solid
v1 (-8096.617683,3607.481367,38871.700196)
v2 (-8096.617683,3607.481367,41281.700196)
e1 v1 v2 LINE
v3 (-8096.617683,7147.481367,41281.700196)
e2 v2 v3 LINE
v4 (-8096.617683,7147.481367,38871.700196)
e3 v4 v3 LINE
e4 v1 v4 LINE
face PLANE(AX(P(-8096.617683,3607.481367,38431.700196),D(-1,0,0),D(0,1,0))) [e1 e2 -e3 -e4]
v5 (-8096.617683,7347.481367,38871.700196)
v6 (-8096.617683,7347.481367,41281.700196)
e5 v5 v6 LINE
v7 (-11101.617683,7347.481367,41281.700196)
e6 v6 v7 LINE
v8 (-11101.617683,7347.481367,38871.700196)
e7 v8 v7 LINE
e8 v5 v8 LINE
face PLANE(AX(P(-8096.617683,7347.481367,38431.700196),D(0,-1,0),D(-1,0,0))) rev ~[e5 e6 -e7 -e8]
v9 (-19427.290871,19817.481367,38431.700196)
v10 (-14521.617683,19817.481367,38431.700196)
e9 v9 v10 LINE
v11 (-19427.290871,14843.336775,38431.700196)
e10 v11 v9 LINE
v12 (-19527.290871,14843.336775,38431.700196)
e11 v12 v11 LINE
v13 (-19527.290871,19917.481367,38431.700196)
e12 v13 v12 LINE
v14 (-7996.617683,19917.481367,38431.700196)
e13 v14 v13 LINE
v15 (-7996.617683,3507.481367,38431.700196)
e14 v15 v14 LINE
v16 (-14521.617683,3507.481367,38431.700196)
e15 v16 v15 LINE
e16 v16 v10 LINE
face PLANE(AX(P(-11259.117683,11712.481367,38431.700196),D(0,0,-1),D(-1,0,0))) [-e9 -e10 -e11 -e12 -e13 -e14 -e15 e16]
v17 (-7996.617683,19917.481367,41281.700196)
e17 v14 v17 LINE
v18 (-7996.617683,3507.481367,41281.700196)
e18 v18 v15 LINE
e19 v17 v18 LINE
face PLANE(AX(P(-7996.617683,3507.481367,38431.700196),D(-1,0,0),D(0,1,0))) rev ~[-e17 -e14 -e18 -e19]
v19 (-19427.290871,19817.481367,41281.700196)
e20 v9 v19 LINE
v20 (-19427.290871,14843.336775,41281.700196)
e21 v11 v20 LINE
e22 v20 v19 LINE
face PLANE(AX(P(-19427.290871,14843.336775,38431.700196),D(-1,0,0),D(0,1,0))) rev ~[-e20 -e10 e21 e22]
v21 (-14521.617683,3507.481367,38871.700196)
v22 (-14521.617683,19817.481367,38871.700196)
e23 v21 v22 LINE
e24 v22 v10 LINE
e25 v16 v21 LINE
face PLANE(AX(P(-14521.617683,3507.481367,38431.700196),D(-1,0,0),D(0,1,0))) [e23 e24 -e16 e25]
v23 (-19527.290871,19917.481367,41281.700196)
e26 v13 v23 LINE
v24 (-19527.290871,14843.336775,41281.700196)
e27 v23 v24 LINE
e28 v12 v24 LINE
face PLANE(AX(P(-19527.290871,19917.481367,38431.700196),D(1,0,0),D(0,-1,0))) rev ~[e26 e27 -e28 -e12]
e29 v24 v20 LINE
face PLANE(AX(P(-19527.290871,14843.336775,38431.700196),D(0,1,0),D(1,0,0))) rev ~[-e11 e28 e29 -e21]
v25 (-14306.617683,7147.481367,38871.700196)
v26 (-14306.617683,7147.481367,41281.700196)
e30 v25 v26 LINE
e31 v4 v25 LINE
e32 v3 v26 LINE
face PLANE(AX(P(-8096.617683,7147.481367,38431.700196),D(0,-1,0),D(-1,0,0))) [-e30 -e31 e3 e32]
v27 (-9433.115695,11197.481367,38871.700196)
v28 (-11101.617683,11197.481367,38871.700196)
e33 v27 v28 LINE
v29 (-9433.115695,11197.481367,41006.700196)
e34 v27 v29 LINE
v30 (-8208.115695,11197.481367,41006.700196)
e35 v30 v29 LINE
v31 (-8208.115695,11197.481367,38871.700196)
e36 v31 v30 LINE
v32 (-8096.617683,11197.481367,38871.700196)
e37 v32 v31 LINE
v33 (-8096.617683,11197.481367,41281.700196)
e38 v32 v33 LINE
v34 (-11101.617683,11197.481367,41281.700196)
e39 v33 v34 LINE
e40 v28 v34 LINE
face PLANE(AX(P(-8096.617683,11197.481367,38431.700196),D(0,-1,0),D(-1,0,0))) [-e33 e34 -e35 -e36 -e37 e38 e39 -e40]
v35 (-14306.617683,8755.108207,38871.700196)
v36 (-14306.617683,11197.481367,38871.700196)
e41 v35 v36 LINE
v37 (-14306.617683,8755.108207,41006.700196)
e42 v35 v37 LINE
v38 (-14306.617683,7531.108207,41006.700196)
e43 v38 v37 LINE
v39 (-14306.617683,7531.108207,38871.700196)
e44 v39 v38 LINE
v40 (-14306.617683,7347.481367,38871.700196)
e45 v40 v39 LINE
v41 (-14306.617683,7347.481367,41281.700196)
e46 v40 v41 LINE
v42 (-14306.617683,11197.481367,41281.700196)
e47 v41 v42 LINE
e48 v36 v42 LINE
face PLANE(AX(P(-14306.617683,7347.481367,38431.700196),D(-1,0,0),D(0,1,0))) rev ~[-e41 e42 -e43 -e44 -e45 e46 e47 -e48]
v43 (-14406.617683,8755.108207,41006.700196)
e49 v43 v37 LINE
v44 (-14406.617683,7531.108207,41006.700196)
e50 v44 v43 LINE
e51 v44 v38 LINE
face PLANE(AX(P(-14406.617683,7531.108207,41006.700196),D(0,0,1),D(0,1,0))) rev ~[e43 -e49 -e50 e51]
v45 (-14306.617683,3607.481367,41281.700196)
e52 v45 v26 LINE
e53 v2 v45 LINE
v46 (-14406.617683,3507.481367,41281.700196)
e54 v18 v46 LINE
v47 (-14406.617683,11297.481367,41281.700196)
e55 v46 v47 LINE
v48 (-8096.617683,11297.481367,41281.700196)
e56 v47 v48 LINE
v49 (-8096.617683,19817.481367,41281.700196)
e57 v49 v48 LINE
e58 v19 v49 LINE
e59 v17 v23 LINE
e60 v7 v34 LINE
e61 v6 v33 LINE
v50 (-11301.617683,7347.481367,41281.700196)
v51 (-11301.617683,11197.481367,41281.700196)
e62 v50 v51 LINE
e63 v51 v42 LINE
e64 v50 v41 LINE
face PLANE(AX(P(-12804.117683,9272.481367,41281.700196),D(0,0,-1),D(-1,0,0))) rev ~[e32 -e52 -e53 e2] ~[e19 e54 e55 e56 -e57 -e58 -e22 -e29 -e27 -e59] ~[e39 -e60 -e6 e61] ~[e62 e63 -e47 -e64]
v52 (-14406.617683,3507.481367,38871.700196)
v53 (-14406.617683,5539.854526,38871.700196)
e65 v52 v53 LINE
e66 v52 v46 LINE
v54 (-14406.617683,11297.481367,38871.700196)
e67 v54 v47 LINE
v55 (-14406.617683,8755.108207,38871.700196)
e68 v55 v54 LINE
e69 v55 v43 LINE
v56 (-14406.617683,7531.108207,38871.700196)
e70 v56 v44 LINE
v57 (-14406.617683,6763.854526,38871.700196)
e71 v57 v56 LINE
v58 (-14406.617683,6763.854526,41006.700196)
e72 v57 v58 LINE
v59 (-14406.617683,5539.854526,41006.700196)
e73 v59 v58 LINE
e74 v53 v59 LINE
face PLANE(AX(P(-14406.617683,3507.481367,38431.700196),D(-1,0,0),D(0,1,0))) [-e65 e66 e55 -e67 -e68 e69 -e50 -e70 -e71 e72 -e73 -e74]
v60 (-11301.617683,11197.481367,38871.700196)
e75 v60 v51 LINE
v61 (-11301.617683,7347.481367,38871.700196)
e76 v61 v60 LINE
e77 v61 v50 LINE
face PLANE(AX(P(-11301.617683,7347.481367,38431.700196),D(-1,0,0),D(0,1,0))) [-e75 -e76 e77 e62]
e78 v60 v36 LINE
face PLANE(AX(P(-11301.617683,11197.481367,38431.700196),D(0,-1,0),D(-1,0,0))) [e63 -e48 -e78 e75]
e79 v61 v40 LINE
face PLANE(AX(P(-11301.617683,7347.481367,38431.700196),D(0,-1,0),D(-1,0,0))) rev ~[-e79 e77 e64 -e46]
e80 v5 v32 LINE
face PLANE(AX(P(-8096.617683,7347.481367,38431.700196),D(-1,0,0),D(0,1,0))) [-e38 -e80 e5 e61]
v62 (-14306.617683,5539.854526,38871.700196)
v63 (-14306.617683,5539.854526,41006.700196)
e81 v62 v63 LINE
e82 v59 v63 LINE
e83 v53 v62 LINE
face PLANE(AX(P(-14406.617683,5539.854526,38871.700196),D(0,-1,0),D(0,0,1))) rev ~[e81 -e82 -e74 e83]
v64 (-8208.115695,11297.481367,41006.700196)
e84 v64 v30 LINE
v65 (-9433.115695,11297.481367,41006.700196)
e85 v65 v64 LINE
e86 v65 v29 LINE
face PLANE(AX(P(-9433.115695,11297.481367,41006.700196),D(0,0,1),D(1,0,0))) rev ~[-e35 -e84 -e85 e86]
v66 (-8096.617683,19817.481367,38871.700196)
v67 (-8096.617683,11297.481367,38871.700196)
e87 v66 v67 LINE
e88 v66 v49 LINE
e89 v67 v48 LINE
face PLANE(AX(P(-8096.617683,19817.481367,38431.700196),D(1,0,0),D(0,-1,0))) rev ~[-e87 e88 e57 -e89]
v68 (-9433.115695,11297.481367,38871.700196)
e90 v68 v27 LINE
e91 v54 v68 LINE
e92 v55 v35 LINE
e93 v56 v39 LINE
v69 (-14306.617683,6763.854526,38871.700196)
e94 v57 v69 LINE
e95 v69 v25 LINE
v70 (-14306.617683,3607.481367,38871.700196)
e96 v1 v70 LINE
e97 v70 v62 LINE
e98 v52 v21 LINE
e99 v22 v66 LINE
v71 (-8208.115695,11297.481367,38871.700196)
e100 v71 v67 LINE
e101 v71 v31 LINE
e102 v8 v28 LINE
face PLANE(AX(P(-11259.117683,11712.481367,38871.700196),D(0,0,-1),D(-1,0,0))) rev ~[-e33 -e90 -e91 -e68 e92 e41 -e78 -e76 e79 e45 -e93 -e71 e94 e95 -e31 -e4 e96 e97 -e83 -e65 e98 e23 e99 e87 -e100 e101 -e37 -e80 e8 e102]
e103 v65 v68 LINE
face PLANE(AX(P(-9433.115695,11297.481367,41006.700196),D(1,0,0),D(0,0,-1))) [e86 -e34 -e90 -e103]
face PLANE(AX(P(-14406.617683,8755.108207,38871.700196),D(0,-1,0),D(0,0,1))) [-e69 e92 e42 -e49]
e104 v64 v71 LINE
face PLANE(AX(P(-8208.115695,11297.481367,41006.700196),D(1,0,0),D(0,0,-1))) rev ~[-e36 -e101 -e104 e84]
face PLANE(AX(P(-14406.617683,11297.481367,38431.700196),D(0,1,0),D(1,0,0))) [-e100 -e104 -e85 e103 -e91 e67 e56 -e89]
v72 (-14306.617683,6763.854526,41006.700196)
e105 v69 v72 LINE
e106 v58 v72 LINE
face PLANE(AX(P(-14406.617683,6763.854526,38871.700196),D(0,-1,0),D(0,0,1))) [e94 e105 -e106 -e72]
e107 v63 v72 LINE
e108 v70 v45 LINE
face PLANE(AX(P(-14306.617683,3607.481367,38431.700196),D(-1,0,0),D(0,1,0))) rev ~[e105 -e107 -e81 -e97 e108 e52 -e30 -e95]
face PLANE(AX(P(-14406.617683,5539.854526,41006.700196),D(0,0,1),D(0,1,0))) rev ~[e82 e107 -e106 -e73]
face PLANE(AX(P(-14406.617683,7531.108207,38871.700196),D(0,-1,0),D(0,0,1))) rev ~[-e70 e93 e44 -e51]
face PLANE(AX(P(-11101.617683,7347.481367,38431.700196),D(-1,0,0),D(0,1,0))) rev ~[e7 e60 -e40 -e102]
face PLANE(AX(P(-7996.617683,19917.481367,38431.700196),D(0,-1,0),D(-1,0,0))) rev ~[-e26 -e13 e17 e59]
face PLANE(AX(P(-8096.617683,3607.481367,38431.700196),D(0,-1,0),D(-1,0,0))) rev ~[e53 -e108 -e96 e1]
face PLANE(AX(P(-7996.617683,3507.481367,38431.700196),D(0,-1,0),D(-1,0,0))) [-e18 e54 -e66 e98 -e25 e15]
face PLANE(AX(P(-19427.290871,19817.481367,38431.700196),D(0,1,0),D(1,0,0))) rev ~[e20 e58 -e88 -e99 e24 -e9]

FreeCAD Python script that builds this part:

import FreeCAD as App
import Part
import Sketcher
from FreeCAD import Vector
Q = App.Units.Quantity

doc = App.newDocument("Part")
body = doc.addObject("PartDesign::Body", "Body")

sketch1 = doc.addObject("Sketcher::SketchObject", "Sketch")
body.addObject(sketch1)
sketch1.AttachmentSupport = (doc.XY_Plane, [""])
sketch1.MapMode = "FlatFace"
sketch1.AttachmentOffset = App.Placement(Vector(0, 0, 38431.700196), App.Rotation())
sketch1.addGeometry(Part.LineSegment(Vector(-7997, 19917, 0), Vector(-7997, 3507, 0)), False)
sketch1.addGeometry(Part.LineSegment(Vector(-7997, 3507, 0), Vector(-14522, 3507, 0)), False)
sketch1.addGeometry(Part.LineSegment(Vector(-14522, 3507, 0), Vector(-14522, 19917, 0)), False)
sketch1.addGeometry(Part.LineSegment(Vector(-14522, 19917, 0), Vector(-7997, 19917, 0)), False)
sketch1.addConstraint(Sketcher.Constraint("Coincident", 0, 2, 1, 1))
sketch1.addConstraint(Sketcher.Constraint("Coincident", 1, 2, 2, 1))
sketch1.addConstraint(Sketcher.Constraint("Coincident", 2, 2, 3, 1))
sketch1.addConstraint(Sketcher.Constraint("Coincident", 3, 2, 0, 1))
sketch1.addConstraint(Sketcher.Constraint("Vertical", 0))
sketch1.addConstraint(Sketcher.Constraint("Horizontal", 1))
sketch1.addConstraint(Sketcher.Constraint("Vertical", 2))
sketch1.addConstraint(Sketcher.Constraint("Horizontal", 3))
sketch1.addConstraint(Sketcher.Constraint("DistanceX", 1, 2, 1, 1, Q("6525 mm")))
sketch1.addConstraint(Sketcher.Constraint("DistanceY", 0, 2, 0, 1, Q("16410 mm")))
sketch1.addConstraint(Sketcher.Constraint("DistanceX", 0, 2, -1, 1, Q("7996.617683 mm")))
sketch1.addConstraint(Sketcher.Constraint("DistanceY", -1, 1, 0, 2, Q("3507.481367 mm")))
pad1 = doc.addObject("PartDesign::Pad", "Pad")
body.addObject(pad1)
pad1.Profile = sketch1
pad1.Length = 440

sketch2 = doc.addObject("Sketcher::SketchObject", "Sketch001")
body.addObject(sketch2)
sketch2.AttachmentSupport = (doc.XY_Plane, [""])
sketch2.MapMode = "FlatFace"
sketch2.AttachmentOffset = App.Placement(Vector(0, 0, 38431.700196), App.Rotation())
sketch2.addGeometry(Part.LineSegment(Vector(-14407, 11297, 0), Vector(-8097, 11297, 0)), False)
sketch2.addGeometry(Part.LineSegment(Vector(-8097, 11297, 0), Vector(-8097, 19817, 0)), False)
sketch2.addGeometry(Part.LineSegment(Vector(-8097, 19817, 0), Vector(-19427, 19817, 0)), False)
sketch2.addGeometry(Part.LineSegment(Vector(-19427, 19817, 0), Vector(-19427, 14843, 0)), False)
sketch2.addGeometry(Part.LineSegment(Vector(-19427, 14843, 0), Vector(-19527, 14843, 0)), False)
sketch2.addGeometry(Part.LineSegment(Vector(-19527, 14843, 0), Vector(-19527, 19917, 0)), False)
sketch2.addGeometry(Part.LineSegment(Vector(-19527, 19917, 0), Vector(-7997, 19917, 0)), False)
sketch2.addGeometry(Part.LineSegment(Vector(-7997, 19917, 0), Vector(-7997, 3507, 0)), False)
sketch2.addGeometry(Part.LineSegment(Vector(-7997, 3507, 0), Vector(-14407, 3507, 0)), False)
sketch2.addGeometry(Part.LineSegment(Vector(-14407, 3507, 0), Vector(-14407, 11297, 0)), False)
sketch2.addGeometry(Part.LineSegment(Vector(-14307, 3607, 0), Vector(-8097, 3607, 0)), False)
sketch2.addGeometry(Part.LineSegment(Vector(-8097, 3607, 0), Vector(-8097, 7147, 0)), False)
sketch2.addGeometry(Part.LineSegment(Vector(-8097, 7147, 0), Vector(-14307, 7147, 0)), False)
sketch2.addGeometry(Part.LineSegment(Vector(-14307, 7147, 0), Vector(-14307, 3607, 0)), False)
sketch2.addGeometry(Part.LineSegment(Vector(-11102, 7347, 0), Vector(-8097, 7347, 0)), False)
sketch2.addGeometry(Part.LineSegment(Vector(-8097, 7347, 0), Vector(-8097, 11197, 0)), False)
sketch2.addGeometry(Part.LineSegment(Vector(-8097, 11197, 0), Vector(-11102, 11197, 0)), False)
sketch2.addGeometry(Part.LineSegment(Vector(-11102, 11197, 0), Vector(-11102, 7347, 0)), False)
sketch2.addGeometry(Part.LineSegment(Vector(-14307, 7347, 0), Vector(-11302, 7347, 0)), False)
sketch2.addGeometry(Part.LineSegment(Vector(-11302, 7347, 0), Vector(-11302, 11197, 0)), False)
sketch2.addGeometry(Part.LineSegment(Vector(-11302, 11197, 0), Vector(-14307, 11197, 0)), False)
sketch2.addGeometry(Part.LineSegment(Vector(-14307, 11197, 0), Vector(-14307, 7347, 0)), False)
sketch2.addConstraint(Sketcher.Constraint("Coincident", 0, 2, 1, 1))
sketch2.addConstraint(Sketcher.Constraint("Coincident", 1, 2, 2, 1))
sketch2.addConstraint(Sketcher.Constraint("Coincident", 2, 2, 3, 1))
sketch2.addConstraint(Sketcher.Constraint("Coincident", 3, 2, 4, 1))
sketch2.addConstraint(Sketcher.Constraint("Coincident", 4, 2, 5, 1))
sketch2.addConstraint(Sketcher.Constraint("Coincident", 5, 2, 6, 1))
sketch2.addConstraint(Sketcher.Constraint("Coincident", 6, 2, 7, 1))
sketch2.addConstraint(Sketcher.Constraint("Coincident", 7, 2, 8, 1))
sketch2.addConstraint(Sketcher.Constraint("Coincident", 8, 2, 9, 1))
sketch2.addConstraint(Sketcher.Constraint("Coincident", 9, 2, 0, 1))
sketch2.addConstraint(Sketcher.Constraint("Coincident", 10, 2, 11, 1))
sketch2.addConstraint(Sketcher.Constraint("Coincident", 11, 2, 12, 1))
sketch2.addConstraint(Sketcher.Constraint("Coincident", 12, 2, 13, 1))
sketch2.addConstraint(Sketcher.Constraint("Coincident", 13, 2, 10, 1))
sketch2.addConstraint(Sketcher.Constraint("Coincident", 14, 2, 15, 1))
sketch2.addConstraint(Sketcher.Constraint("Coincident", 15, 2, 16, 1))
sketch2.addConstraint(Sketcher.Constraint("Coincident", 16, 2, 17, 1))
sketch2.addConstraint(Sketcher.Constraint("Coincident", 17, 2, 14, 1))
sketch2.addConstraint(Sketcher.Constraint("Coincident", 18, 2, 19, 1))
sketch2.addConstraint(Sketcher.Constraint("Coincident", 19, 2, 20, 1))
sketch2.addConstraint(Sketcher.Constraint("Coincident", 20, 2, 21, 1))
sketch2.addConstraint(Sketcher.Constraint("Coincident", 21, 2, 18, 1))
sketch2.addConstraint(Sketcher.Constraint("Horizontal", 0))
sketch2.addConstraint(Sketcher.Constraint("Vertical", 1))
sketch2.addConstraint(Sketcher.Constraint("Horizontal", 2))
sketch2.addConstraint(Sketcher.Constraint("Vertical", 3))
sketch2.addConstraint(Sketcher.Constraint("Horizontal", 4))
sketch2.addConstraint(Sketcher.Constraint("Vertical", 5))
sketch2.addConstraint(Sketcher.Constraint("Horizontal", 6))
sketch2.addConstraint(Sketcher.Constraint("Vertical", 7))
sketch2.addConstraint(Sketcher.Constraint("Horizontal", 8))
sketch2.addConstraint(Sketcher.Constraint("Vertical", 9))
sketch2.addConstraint(Sketcher.Constraint("Horizontal", 10))
sketch2.addConstraint(Sketcher.Constraint("Vertical", 11))
sketch2.addConstraint(Sketcher.Constraint("Horizontal", 12))
sketch2.addConstraint(Sketcher.Constraint("Vertical", 13))
sketch2.addConstraint(Sketcher.Constraint("Horizontal", 14))
sketch2.addConstraint(Sketcher.Constraint("Vertical", 15))
sketch2.addConstraint(Sketcher.Constraint("Horizontal", 16))
sketch2.addConstraint(Sketcher.Constraint("Vertical", 17))
sketch2.addConstraint(Sketcher.Constraint("Horizontal", 18))
sketch2.addConstraint(Sketcher.Constraint("Vertical", 19))
sketch2.addConstraint(Sketcher.Constraint("Horizontal", 20))
sketch2.addConstraint(Sketcher.Constraint("Vertical", 21))
sketch2.addConstraint(Sketcher.Constraint("Horizontal", 17, 2, 18, 2))
sketch2.addConstraint(Sketcher.Constraint("Horizontal", 16, 2, 19, 2))
sketch2.addConstraint(Sketcher.Constraint("Vertical", 1, 2, 10, 2))
sketch2.addConstraint(Sketcher.Constraint("Vertical", 11, 2, 14, 2))
sketch2.addConstraint(Sketcher.Constraint("Vertical", 13, 2, 20, 2))
sketch2.addConstraint(Sketcher.Constraint("Equal", 16, 18))
sketch2.addConstraint(Sketcher.Constraint("DistanceX", 0, 1, 0, 2, Q("6310 mm")))
sketch2.addConstraint(Sketcher.Constraint("DistanceX", 4, 2, 4, 1, Q("100 mm")))
sketch2.addConstraint(Sketcher.Constraint("DistanceX", 8, 2, 8, 1, Q("6410 mm")))
sketch2.addConstraint(Sketcher.Constraint("DistanceX", 10, 1, 10, 2, Q("6210 mm")))
sketch2.addConstraint(Sketcher.Constraint("DistanceX", 14, 1, 14, 2, Q("3005 mm")))
sketch2.addConstraint(Sketcher.Constraint("DistanceY", 1, 1, 1, 2, Q("8520 mm")))
sketch2.addConstraint(Sketcher.Constraint("DistanceY", 7, 2, 7, 1, Q("16410 mm")))
sketch2.addConstraint(Sketcher.Constraint("DistanceY", 9, 1, 9, 2, Q("7790 mm")))
sketch2.addConstraint(Sketcher.Constraint("DistanceY", 11, 1, 11, 2, Q("3540 mm")))
sketch2.addConstraint(Sketcher.Constraint("DistanceY", 15, 1, 15, 2, Q("3850 mm")))
sketch2.addConstraint(Sketcher.Constraint("DistanceY", 7, 2, 10, 2, Q("100 mm")))
sketch2.addConstraint(Sketcher.Constraint("DistanceY", 11, 2, 14, 2, Q("200 mm")))
sketch2.addConstraint(Sketcher.Constraint("DistanceY", 3, 2, 3, 1, Q("4974.144592 mm")))
sketch2.addConstraint(Sketcher.Constraint("DistanceX", 2, 2, 2, 1, Q("11330.673187 mm")))
sketch2.addConstraint(Sketcher.Constraint("DistanceX", 2, 2, -1, 1, Q("19427.290871 mm")))
sketch2.addConstraint(Sketcher.Constraint("DistanceY", -1, 1, 0, 2, Q("11297.481367 mm")))
pad2 = doc.addObject("PartDesign::Pad", "Pad001")
body.addObject(pad2)
pad2.Profile = sketch2
pad2.Length = 2850

sketch3 = doc.addObject("Sketcher::SketchObject", "Sketch002")
body.addObject(sketch3)
sketch3.AttachmentSupport = (doc.YZ_Plane, [""])
sketch3.MapMode = "FlatFace"
sketch3.AttachmentOffset = App.Placement(Vector(0, 0, -14406.617683), App.Rotation())
sketch3.addGeometry(Part.LineSegment(Vector(8755, 38872, 0), Vector(7531, 38872, 0)), False)
sketch3.addGeometry(Part.LineSegment(Vector(7531, 38872, 0), Vector(7531, 41007, 0)), False)
sketch3.addGeometry(Part.LineSegment(Vector(7531, 41007, 0), Vector(8755, 41007, 0)), False)
sketch3.addGeometry(Part.LineSegment(Vector(8755, 41007, 0), Vector(8755, 38872, 0)), False)
sketch3.addGeometry(Part.LineSegment(Vector(6764, 38872, 0), Vector(5540, 38872, 0)), False)
sketch3.addGeometry(Part.LineSegment(Vector(5540, 38872, 0), Vector(5540, 41007, 0)), False)
sketch3.addGeometry(Part.LineSegment(Vector(5540, 41007, 0), Vector(6764, 41007, 0)), False)
sketch3.addGeometry(Part.LineSegment(Vector(6764, 41007, 0), Vector(6764, 38872, 0)), False)
sketch3.addConstraint(Sketcher.Constraint("Coincident", 0, 2, 1, 1))
sketch3.addConstraint(Sketcher.Constraint("Coincident", 1, 2, 2, 1))
sketch3.addConstraint(Sketcher.Constraint("Coincident", 2, 2, 3, 1))
sketch3.addConstraint(Sketcher.Constraint("Coincident", 3, 2, 0, 1))
sketch3.addConstraint(Sketcher.Constraint("Coincident", 4, 2, 5, 1))
sketch3.addConstraint(Sketcher.Constraint("Coincident", 5, 2, 6, 1))
sketch3.addConstraint(Sketcher.Constraint("Coincident", 6, 2, 7, 1))
sketch3.addConstraint(Sketcher.Constraint("Coincident", 7, 2, 4, 1))
sketch3.addConstraint(Sketcher.Constraint("Horizontal", 0))
sketch3.addConstraint(Sketcher.Constraint("Vertical", 1))
sketch3.addConstraint(Sketcher.Constraint("Horizontal", 2))
sketch3.addConstraint(Sketcher.Constraint("Vertical", 3))
sketch3.addConstraint(Sketcher.Constraint("Horizontal", 4))
sketch3.addConstraint(Sketcher.Constraint("Vertical", 5))
sketch3.addConstraint(Sketcher.Constraint("Horizontal", 6))
sketch3.addConstraint(Sketcher.Constraint("Vertical", 7))
sketch3.addConstraint(Sketcher.Constraint("Horizontal", 3, 2, 4, 2))
sketch3.addConstraint(Sketcher.Constraint("Horizontal", 2, 2, 5, 2))
sketch3.addConstraint(Sketcher.Constraint("Equal", 2, 4))
sketch3.addConstraint(Sketcher.Constraint("DistanceX", 0, 2, 0, 1, Q("1224 mm")))
sketch3.addConstraint(Sketcher.Constraint("DistanceY", 1, 1, 1, 2, Q("2135 mm")))
sketch3.addConstraint(Sketcher.Constraint("DistanceX", 4, 2, 0, 2, Q("1991.253681 mm")))
sketch3.addConstraint(Sketcher.Constraint("DistanceX", -1, 1, 0, 2, Q("7531.108207 mm")))
sketch3.addConstraint(Sketcher.Constraint("DistanceY", -1, 1, 0, 2, Q("38871.700196 mm")))
pocket1 = doc.addObject("PartDesign::Pocket", "Pocket")
body.addObject(pocket1)
pocket1.Profile = sketch3
pocket1.Length = 1036
pocket1.Reversed = True

sketch4 = doc.addObject("Sketcher::SketchObject", "Sketch003")
body.addObject(sketch4)
sketch4.AttachmentSupport = (doc.XZ_Plane, [""])
sketch4.MapMode = "FlatFace"
sketch4.AttachmentOffset = App.Placement(Vector(0, 0, -11297.481367), App.Rotation())
sketch4.addGeometry(Part.LineSegment(Vector(-9433, 38872, 0), Vector(-9433, 41007, 0)), False)
sketch4.addGeometry(Part.LineSegment(Vector(-9433, 41007, 0), Vector(-8208, 41007, 0)), False)
sketch4.addGeometry(Part.LineSegment(Vector(-8208, 41007, 0), Vector(-8208, 38872, 0)), False)
sketch4.addGeometry(Part.LineSegment(Vector(-8208, 38872, 0), Vector(-9433, 38872, 0)), False)
sketch4.addConstraint(Sketcher.Constraint("Coincident", 0, 2, 1, 1))
sketch4.addConstraint(Sketcher.Constraint("Coincident", 1, 2, 2, 1))
sketch4.addConstraint(Sketcher.Constraint("Coincident", 2, 2, 3, 1))
sketch4.addConstraint(Sketcher.Constraint("Coincident", 3, 2, 0, 1))
sketch4.addConstraint(Sketcher.Constraint("Vertical", 0))
sketch4.addConstraint(Sketcher.Constraint("Horizontal", 1))
sketch4.addConstraint(Sketcher.Constraint("Vertical", 2))
sketch4.addConstraint(Sketcher.Constraint("Horizontal", 3))
sketch4.addConstraint(Sketcher.Constraint("DistanceX", 1, 1, 1, 2, Q("1225 mm")))
sketch4.addConstraint(Sketcher.Constraint("DistanceY", 0, 1, 0, 2, Q("2135 mm")))
sketch4.addConstraint(Sketcher.Constraint("DistanceX", 0, 2, -1, 1, Q("9433.115695 mm")))
sketch4.addConstraint(Sketcher.Constraint("DistanceY", -1, 1, 0, 2, Q("41006.700196 mm")))
pocket2 = doc.addObject("PartDesign::Pocket", "Pocket001")
body.addObject(pocket2)
pocket2.Profile = sketch4
pocket2.Length = 1036
pocket2.Reversed = True

doc.recompute()
